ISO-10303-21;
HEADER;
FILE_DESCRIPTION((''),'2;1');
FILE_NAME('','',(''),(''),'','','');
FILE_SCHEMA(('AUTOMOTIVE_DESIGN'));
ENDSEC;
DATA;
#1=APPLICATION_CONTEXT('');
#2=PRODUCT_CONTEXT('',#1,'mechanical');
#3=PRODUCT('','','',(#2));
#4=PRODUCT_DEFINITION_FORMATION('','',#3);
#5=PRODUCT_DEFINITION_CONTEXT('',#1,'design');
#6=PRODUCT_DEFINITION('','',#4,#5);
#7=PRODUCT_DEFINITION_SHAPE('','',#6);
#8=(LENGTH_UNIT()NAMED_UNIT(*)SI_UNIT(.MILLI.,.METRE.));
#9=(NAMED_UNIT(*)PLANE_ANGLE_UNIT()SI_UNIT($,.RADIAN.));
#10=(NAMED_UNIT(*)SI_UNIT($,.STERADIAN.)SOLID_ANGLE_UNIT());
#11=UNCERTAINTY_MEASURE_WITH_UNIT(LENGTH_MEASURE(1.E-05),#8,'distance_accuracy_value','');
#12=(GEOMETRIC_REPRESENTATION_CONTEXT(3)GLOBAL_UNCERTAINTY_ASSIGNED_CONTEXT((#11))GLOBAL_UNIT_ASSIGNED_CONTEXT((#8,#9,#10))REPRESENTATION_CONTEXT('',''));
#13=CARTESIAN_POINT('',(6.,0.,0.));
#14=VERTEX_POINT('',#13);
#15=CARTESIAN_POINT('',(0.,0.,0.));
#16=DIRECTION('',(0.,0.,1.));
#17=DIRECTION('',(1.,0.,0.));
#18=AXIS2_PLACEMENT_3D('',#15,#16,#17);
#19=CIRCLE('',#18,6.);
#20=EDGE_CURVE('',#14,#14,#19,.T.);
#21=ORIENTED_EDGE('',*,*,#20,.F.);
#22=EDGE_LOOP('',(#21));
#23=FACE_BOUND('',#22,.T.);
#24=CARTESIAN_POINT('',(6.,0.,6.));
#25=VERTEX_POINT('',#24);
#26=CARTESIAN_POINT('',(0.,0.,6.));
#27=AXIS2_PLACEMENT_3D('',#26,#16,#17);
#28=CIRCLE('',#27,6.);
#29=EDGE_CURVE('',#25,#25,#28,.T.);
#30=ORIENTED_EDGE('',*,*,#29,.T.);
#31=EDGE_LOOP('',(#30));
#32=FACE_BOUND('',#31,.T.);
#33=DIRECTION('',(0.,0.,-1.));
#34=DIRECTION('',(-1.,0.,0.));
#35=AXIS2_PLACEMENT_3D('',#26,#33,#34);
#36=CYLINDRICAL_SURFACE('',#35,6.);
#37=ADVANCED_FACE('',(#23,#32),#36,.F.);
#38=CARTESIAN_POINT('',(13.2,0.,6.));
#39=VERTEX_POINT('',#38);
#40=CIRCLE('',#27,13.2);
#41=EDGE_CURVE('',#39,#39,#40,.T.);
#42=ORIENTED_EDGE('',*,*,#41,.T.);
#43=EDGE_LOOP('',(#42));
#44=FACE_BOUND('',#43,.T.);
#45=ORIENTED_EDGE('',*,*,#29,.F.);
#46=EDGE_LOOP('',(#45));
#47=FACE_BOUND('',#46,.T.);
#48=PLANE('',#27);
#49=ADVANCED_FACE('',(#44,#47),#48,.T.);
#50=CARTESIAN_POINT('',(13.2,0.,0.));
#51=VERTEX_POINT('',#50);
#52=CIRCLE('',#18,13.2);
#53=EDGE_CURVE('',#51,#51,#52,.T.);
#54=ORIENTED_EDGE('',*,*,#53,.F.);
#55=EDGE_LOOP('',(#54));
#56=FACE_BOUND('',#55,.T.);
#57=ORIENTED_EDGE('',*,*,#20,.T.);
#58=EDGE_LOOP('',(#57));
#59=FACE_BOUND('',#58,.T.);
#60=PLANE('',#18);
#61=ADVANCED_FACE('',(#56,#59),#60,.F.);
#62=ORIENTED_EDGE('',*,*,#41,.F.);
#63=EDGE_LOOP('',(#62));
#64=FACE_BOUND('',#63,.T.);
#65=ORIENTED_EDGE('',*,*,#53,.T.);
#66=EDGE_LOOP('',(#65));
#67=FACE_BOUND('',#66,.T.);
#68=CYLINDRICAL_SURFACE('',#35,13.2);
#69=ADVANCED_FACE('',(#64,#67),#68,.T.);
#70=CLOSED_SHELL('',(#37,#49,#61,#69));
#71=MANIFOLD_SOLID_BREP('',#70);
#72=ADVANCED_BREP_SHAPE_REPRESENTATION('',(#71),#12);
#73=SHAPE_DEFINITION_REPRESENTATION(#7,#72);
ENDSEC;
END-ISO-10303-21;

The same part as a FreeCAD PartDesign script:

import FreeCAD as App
import Part
import Sketcher

V = App.Vector

doc = App.newDocument("Part")
body = doc.addObject("PartDesign::Body", "Body")

# Sketch on XY plane
sketch1 = body.newObject("Sketcher::SketchObject", "Sketch")
sketch1.AttachmentSupport = (doc.getObject("XY_Plane"), [""])
sketch1.MapMode = "FlatFace"
sketch1.addGeometry([
    Part.Circle(V(0, 0, 0), V(0, 0, 1), 13),
    Part.Circle(V(0, 0, 0), V(0, 0, 1), 6),
], False)
sketch1.addConstraint([
    Sketcher.Constraint("Coincident", 0, 3, -1, 1),
    Sketcher.Constraint("Coincident", 1, 3, -1, 1),
    Sketcher.Constraint("Diameter", 1, 12.0),
    Sketcher.Constraint("Diameter", 0, 26.4),
])
pad1 = body.newObject("PartDesign::Pad", "Pad")
pad1.Profile = sketch1
pad1.Length = 6

doc.recompute()
